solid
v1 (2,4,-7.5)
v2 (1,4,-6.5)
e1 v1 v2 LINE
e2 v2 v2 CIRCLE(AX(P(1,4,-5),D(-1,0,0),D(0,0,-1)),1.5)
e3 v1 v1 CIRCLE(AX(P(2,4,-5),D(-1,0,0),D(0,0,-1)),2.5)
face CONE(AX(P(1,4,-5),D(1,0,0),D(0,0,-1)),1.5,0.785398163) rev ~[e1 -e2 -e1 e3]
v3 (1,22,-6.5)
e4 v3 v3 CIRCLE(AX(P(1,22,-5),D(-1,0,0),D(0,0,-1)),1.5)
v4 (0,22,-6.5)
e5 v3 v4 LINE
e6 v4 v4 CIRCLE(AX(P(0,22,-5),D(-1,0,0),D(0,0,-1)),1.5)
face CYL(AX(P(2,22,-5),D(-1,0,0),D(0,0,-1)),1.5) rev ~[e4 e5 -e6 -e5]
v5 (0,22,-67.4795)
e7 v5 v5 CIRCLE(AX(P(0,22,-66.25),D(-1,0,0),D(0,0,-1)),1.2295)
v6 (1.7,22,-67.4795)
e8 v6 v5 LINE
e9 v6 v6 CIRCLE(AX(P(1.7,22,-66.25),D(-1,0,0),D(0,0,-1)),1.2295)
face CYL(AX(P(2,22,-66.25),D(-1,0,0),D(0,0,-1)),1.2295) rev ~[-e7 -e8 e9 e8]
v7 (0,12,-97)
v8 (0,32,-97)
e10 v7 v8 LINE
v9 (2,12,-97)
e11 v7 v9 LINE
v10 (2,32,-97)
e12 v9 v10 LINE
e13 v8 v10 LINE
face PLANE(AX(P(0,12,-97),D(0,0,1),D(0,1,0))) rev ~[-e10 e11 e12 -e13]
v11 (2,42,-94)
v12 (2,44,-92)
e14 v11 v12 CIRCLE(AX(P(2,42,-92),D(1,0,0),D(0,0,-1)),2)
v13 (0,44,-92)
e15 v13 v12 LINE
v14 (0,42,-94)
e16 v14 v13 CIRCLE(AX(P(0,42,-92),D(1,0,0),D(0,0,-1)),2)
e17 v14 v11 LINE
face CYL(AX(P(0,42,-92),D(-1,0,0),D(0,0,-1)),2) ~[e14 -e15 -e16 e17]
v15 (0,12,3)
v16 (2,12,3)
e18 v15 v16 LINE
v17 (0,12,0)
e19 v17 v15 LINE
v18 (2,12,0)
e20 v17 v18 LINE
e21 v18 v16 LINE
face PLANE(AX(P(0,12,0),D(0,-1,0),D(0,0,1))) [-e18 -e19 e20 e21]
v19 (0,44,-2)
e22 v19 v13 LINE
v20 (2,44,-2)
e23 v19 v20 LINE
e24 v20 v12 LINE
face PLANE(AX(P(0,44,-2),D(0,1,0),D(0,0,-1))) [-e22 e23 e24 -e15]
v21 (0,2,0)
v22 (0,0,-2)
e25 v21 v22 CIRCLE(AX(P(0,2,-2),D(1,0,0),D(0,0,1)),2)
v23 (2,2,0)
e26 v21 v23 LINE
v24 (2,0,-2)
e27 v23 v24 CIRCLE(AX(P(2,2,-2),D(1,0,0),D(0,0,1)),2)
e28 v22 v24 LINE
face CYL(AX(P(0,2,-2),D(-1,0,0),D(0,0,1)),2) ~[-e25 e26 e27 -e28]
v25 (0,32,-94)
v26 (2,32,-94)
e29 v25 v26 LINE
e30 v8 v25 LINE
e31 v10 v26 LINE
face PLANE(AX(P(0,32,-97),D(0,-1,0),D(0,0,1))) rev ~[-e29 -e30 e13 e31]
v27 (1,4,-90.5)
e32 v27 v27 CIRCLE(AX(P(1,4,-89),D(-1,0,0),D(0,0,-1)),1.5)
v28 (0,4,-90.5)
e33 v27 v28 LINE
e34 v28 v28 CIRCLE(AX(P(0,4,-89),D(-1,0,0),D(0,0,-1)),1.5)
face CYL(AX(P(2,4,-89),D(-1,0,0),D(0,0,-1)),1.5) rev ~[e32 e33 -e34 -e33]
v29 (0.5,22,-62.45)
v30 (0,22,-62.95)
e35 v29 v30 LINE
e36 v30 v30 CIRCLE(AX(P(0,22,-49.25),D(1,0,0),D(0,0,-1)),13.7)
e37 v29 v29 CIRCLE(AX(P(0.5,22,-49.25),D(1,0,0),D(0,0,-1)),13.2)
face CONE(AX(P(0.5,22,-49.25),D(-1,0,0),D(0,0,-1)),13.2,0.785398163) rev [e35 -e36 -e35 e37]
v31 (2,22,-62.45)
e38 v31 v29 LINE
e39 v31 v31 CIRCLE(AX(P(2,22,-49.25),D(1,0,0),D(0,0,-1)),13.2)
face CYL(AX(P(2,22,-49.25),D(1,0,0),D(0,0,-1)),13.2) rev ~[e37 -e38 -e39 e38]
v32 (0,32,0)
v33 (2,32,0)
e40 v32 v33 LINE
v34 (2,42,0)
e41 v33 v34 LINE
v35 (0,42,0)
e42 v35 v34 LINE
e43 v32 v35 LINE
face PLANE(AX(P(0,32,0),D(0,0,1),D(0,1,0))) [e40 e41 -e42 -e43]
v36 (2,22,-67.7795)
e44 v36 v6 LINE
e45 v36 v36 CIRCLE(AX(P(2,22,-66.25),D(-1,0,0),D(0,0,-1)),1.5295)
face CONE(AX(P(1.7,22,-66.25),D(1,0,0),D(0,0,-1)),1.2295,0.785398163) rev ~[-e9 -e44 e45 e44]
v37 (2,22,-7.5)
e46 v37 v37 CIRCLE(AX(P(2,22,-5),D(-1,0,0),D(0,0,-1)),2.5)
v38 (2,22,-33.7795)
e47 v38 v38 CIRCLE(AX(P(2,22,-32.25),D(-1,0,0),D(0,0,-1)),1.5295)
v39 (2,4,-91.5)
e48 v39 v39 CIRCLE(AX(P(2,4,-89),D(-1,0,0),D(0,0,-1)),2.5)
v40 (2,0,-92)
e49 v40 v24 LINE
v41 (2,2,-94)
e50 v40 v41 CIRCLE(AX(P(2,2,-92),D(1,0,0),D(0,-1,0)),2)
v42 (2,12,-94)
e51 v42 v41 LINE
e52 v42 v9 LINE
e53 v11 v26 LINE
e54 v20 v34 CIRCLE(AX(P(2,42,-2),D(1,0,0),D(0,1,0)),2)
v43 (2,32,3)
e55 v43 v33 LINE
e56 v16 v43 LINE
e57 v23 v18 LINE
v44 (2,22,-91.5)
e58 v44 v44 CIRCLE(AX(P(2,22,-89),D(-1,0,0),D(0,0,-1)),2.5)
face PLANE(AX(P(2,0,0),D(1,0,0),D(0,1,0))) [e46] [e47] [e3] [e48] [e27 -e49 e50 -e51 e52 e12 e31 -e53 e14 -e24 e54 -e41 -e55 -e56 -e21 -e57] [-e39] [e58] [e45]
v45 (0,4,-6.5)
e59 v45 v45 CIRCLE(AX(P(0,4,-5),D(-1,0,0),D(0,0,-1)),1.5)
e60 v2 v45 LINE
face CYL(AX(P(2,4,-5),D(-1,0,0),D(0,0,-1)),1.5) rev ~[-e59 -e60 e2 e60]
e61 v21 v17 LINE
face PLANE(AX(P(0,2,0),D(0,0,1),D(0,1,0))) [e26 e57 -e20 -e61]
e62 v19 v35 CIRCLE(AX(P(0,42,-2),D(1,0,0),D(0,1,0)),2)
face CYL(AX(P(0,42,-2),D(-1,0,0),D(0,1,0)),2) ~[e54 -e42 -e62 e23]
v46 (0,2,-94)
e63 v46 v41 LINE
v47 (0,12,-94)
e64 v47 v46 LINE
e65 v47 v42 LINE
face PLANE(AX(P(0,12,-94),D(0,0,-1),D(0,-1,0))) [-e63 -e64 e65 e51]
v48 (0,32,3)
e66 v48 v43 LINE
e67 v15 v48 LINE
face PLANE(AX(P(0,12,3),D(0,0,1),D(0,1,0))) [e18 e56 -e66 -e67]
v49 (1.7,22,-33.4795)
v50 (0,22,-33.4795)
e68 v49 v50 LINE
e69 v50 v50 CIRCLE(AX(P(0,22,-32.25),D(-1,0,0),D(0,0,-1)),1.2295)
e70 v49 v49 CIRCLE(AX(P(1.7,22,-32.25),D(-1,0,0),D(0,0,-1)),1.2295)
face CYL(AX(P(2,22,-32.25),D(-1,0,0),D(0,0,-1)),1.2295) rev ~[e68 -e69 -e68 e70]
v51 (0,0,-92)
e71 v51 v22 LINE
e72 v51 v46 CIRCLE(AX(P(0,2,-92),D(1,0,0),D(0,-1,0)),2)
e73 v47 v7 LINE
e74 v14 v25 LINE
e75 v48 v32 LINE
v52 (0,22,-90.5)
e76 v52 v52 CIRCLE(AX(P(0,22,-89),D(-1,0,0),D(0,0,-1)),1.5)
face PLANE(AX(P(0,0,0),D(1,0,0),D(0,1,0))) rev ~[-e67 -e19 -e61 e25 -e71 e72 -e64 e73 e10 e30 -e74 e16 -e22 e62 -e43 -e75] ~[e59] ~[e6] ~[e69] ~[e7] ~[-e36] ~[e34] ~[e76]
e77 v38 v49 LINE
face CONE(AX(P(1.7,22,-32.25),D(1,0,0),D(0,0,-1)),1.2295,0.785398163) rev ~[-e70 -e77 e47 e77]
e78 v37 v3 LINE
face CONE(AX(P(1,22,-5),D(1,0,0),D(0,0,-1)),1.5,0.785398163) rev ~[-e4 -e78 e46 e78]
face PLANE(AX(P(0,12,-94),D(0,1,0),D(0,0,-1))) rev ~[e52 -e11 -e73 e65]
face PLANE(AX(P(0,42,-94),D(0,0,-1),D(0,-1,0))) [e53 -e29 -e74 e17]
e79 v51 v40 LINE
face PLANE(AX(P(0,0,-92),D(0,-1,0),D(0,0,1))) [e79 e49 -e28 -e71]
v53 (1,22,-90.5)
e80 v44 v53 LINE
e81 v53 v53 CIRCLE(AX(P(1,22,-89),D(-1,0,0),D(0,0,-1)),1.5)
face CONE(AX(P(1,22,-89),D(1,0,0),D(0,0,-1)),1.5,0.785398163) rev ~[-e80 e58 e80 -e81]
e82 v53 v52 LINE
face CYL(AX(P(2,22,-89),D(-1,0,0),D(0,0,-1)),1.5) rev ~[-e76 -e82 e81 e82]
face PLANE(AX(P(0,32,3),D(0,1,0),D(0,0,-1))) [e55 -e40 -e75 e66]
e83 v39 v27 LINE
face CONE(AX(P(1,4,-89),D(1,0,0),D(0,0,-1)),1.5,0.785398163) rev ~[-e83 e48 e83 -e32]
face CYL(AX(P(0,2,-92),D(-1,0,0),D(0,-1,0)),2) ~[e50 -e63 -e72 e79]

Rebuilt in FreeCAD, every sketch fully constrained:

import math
import FreeCAD as App
import Part
import Sketcher
from FreeCAD import Vector


def edges_at(feature, points):
    """Names of the edges that pass closest to the given points."""
    edges = feature.Shape.Edges
    near = lambda p: min(range(len(edges)), key=lambda i: edges[i].distToShape(Part.Vertex(*p))[0])
    return sorted({f"Edge{near(p) + 1}" for p in points})

doc = App.newDocument("Part")
body = doc.addObject("PartDesign::Body", "Body")

# Sketch on YZ plane
sketch1 = doc.addObject("Sketcher::SketchObject", "Sketch")
body.addObject(sketch1)
sketch1.AttachmentSupport = (doc.YZ_Plane, [""])
sketch1.MapMode = "FlatFace"
sketch1.addGeometry([
    Part.LineSegment(Vector(12, 0, 0), Vector(2, 0, 0)),  # 0
    Part.ArcOfCircle(Part.Circle(Vector(2, -2, 0), Vector(0, 0, 1), 2), math.radians(90), math.radians(180)),  # 1
    Part.LineSegment(Vector(0, -2, 0), Vector(0, -92, 0)),  # 2
    Part.ArcOfCircle(Part.Circle(Vector(2, -92, 0), Vector(0, 0, 1), 2), math.radians(180), math.radians(270)),  # 3
    Part.LineSegment(Vector(2, -94, 0), Vector(12, -94, 0)),  # 4
    Part.LineSegment(Vector(12, -94, 0), Vector(12, -97, 0)),  # 5
    Part.LineSegment(Vector(12, -97, 0), Vector(32, -97, 0)),  # 6
    Part.LineSegment(Vector(32, -97, 0), Vector(32, -94, 0)),  # 7
    Part.LineSegment(Vector(32, -94, 0), Vector(42, -94, 0)),  # 8
    Part.ArcOfCircle(Part.Circle(Vector(42, -92, 0), Vector(0, 0, 1), 2), math.radians(-90), math.radians(0)),  # 9
    Part.LineSegment(Vector(44, -92, 0), Vector(44, -2, 0)),  # 10
    Part.ArcOfCircle(Part.Circle(Vector(42, -2, 0), Vector(0, 0, 1), 2), math.radians(0), math.radians(90)),  # 11
    Part.LineSegment(Vector(42, 0, 0), Vector(32, 0, 0)),  # 12
    Part.LineSegment(Vector(32, 0, 0), Vector(32, 3, 0)),  # 13
    Part.LineSegment(Vector(32, 3, 0), Vector(12, 3, 0)),  # 14
    Part.LineSegment(Vector(12, 3, 0), Vector(12, 0, 0)),  # 15
], False)
sketch1.addConstraint([
    Sketcher.Constraint("Tangent", 0, 2, 1, 1),
    Sketcher.Constraint("Tangent", 1, 2, 2, 1),
    Sketcher.Constraint("Tangent", 2, 2, 3, 1),
    Sketcher.Constraint("Tangent", 3, 2, 4, 1),
    Sketcher.Constraint("Coincident", 4, 2, 5, 1),
    Sketcher.Constraint("Coincident", 5, 2, 6, 1),
    Sketcher.Constraint("Coincident", 6, 2, 7, 1),
    Sketcher.Constraint("Coincident", 7, 2, 8, 1),
    Sketcher.Constraint("Tangent", 8, 2, 9, 1),
    Sketcher.Constraint("Tangent", 9, 2, 10, 1),
    Sketcher.Constraint("Tangent", 10, 2, 11, 1),
    Sketcher.Constraint("Tangent", 11, 2, 12, 1),
    Sketcher.Constraint("Coincident", 12, 2, 13, 1),
    Sketcher.Constraint("Coincident", 13, 2, 14, 1),
    Sketcher.Constraint("Coincident", 14, 2, 15, 1),
    Sketcher.Constraint("Coincident", 15, 2, 0, 1),
    Sketcher.Constraint("Horizontal", 0),
    Sketcher.Constraint("Vertical", 2),
    Sketcher.Constraint("Horizontal", 4),
    Sketcher.Constraint("Vertical", 5),
    Sketcher.Constraint("Horizontal", 6),
    Sketcher.Constraint("Vertical", 7),
    Sketcher.Constraint("Horizontal", 8),
    Sketcher.Constraint("Vertical", 10),
    Sketcher.Constraint("Horizontal", 12),
    Sketcher.Constraint("Vertical", 13),
    Sketcher.Constraint("Horizontal", 14),
    Sketcher.Constraint("Vertical", 15),
    Sketcher.Constraint("Equal", 1, 3),
    Sketcher.Constraint("Equal", 3, 9),
    Sketcher.Constraint("Equal", 9, 11),
    Sketcher.Constraint("PointOnObject", 0, 2, -1),
    Sketcher.Constraint("PointOnObject", 1, 2, -2),
    Sketcher.Constraint("PointOnObject", 11, 2, -1),
    Sketcher.Constraint("Horizontal", 3, 3, 9, 3),
    Sketcher.Constraint("Vertical", 7, 2, 12, 2),
    Sketcher.Constraint("Vertical", 5, 2, 14, 2),
    Sketcher.Constraint("Equal", 4, 8),
    Sketcher.Constraint("Equal", 7, 13),
    Sketcher.Constraint("Radius", 1, 2.0),
    Sketcher.Constraint("DistanceX", 6, 1, 6, 2, 20.0),
    Sketcher.Constraint("DistanceY", 5, 2, 5, 1, 3.0),
    Sketcher.Constraint("DistanceY", 3, 2, -1, 1, 94.0),
    Sketcher.Constraint("DistanceX", -1, 1, 4, 2, 12.0),
])
pad1 = doc.addObject("PartDesign::Pad", "Pad")
body.addObject(pad1)
pad1.Profile = sketch1
pad1.Length = 2

# Sketch on YZ plane
sketch2 = doc.addObject("Sketcher::SketchObject", "Sketch001")
body.addObject(sketch2)
sketch2.AttachmentSupport = (doc.YZ_Plane, [""])
sketch2.MapMode = "FlatFace"
sketch2.AttachmentOffset = App.Placement(Vector(0, 0, 2), App.Rotation())
sketch2.addGeometry(Part.Circle(Vector(22, -49, 0), Vector(0, 0, 1), 13), False)
sketch2.addConstraint([
    Sketcher.Constraint("Diameter", 0, 26.4),
    Sketcher.Constraint("DistanceX", -1, 1, 0, 3, 22.0),
    Sketcher.Constraint("DistanceY", 0, 3, -1, 1, 49.25),
])
pocket1 = doc.addObject("PartDesign::Pocket", "Pocket")
body.addObject(pocket1)
pocket1.Profile = sketch2
pocket1.Type = "ThroughAll"

# Sketch on YZ plane
sketch3 = doc.addObject("Sketcher::SketchObject", "Sketch002")
body.addObject(sketch3)
sketch3.AttachmentSupport = (doc.YZ_Plane, [""])
sketch3.MapMode = "FlatFace"
sketch3.AttachmentOffset = App.Placement(Vector(0, 0, 2), App.Rotation())
sketch3.addGeometry([
    Part.Circle(Vector(22, -5, 0), Vector(0, 0, 1), 1.5),
    Part.Circle(Vector(22, -89, 0), Vector(0, 0, 1), 1.5),
    Part.Circle(Vector(4, -89, 0), Vector(0, 0, 1), 1.5),
    Part.Circle(Vector(4, -5, 0), Vector(0, 0, 1), 1.5),
], False)
sketch3.addConstraint([
    Sketcher.Constraint("Equal", 0, 1),
    Sketcher.Constraint("Equal", 1, 2),
    Sketcher.Constraint("Equal", 2, 3),
    Sketcher.Constraint("Horizontal", 1, 3, 2, 3),
    Sketcher.Constraint("Horizontal", 0, 3, 3, 3),
    Sketcher.Constraint("Vertical", 0, 3, 1, 3),
    Sketcher.Constraint("Vertical", 2, 3, 3, 3),
    Sketcher.Constraint("Diameter", 0, 3.0),
    Sketcher.Constraint("DistanceX", -1, 1, 0, 3, 22.0),
    Sketcher.Constraint("DistanceY", 0, 3, -1, 1, 5.0),
    Sketcher.Constraint("DistanceY", 1, 3, -1, 1, 89.0),
    Sketcher.Constraint("DistanceX", -1, 1, 2, 3, 4.0),
])
doc.recompute()
hole = doc.addObject("PartDesign::Hole", "Hole")
body.addObject(hole)
hole.Profile = sketch3
hole.ThreadType = "None"
hole.Diameter = 3
hole.DepthType = "Dimension"
hole.Depth = 14.2
hole.DrillPoint = "Angled"
hole.DrillPointAngle = 118
doc.recompute()

chamfer = doc.addObject("PartDesign::Chamfer", "Chamfer")
body.addObject(chamfer)
chamfer.Base = (hole, edges_at(hole, [
    (2, 4, -87.5),
    (2, 22, -87.5),
    (2, 4, -3.5),
    (2, 22, -3.5),
]))
chamfer.Size = 1

# Sketch on YZ plane
sketch4 = doc.addObject("Sketcher::SketchObject", "Sketch003")
body.addObject(sketch4)
sketch4.AttachmentSupport = (doc.YZ_Plane, [""])
sketch4.MapMode = "FlatFace"
sketch4.AttachmentOffset = App.Placement(Vector(0, 0, 2), App.Rotation())
sketch4.addGeometry([
    Part.Circle(Vector(22, -66.2, 0), Vector(0, 0, 1), 1.2),
    Part.Circle(Vector(22, -32.2, 0), Vector(0, 0, 1), 1.2),
], False)
sketch4.addConstraint([
    Sketcher.Constraint("Equal", 0, 1),
    Sketcher.Constraint("Vertical", 0, 3, 1, 3),
    Sketcher.Constraint("Diameter", 0, 2.459),
    Sketcher.Constraint("DistanceX", -1, 1, 0, 3, 22.0),
    Sketcher.Constraint("DistanceY", 0, 3, 1, 3, 34.0),
    Sketcher.Constraint("DistanceY", 0, 3, -1, 1, 66.25),
])
doc.recompute()
hole2 = doc.addObject("PartDesign::Hole", "Hole001")
body.addObject(hole2)
hole2.Profile = sketch4
hole2.ThreadType = "None"
hole2.Diameter = 2.459
hole2.DepthType = "Dimension"
hole2.Depth = 8.8
hole2.DrillPoint = "Angled"
hole2.DrillPointAngle = 118
doc.recompute()

chamfer2 = doc.addObject("PartDesign::Chamfer", "Chamfer001")
body.addObject(chamfer2)
chamfer2.Base = (hole2, edges_at(hole2, [(2, 22, -65.02), (2, 22, -31.02)]))
chamfer2.Size = 0.3
doc.recompute()

chamfer3 = doc.addObject("PartDesign::Chamfer", "Chamfer002")
body.addObject(chamfer3)
chamfer3.Base = (chamfer2, edges_at(chamfer2, [(0, 22, -36.05)]))
chamfer3.Size = 0.5

doc.recompute()
